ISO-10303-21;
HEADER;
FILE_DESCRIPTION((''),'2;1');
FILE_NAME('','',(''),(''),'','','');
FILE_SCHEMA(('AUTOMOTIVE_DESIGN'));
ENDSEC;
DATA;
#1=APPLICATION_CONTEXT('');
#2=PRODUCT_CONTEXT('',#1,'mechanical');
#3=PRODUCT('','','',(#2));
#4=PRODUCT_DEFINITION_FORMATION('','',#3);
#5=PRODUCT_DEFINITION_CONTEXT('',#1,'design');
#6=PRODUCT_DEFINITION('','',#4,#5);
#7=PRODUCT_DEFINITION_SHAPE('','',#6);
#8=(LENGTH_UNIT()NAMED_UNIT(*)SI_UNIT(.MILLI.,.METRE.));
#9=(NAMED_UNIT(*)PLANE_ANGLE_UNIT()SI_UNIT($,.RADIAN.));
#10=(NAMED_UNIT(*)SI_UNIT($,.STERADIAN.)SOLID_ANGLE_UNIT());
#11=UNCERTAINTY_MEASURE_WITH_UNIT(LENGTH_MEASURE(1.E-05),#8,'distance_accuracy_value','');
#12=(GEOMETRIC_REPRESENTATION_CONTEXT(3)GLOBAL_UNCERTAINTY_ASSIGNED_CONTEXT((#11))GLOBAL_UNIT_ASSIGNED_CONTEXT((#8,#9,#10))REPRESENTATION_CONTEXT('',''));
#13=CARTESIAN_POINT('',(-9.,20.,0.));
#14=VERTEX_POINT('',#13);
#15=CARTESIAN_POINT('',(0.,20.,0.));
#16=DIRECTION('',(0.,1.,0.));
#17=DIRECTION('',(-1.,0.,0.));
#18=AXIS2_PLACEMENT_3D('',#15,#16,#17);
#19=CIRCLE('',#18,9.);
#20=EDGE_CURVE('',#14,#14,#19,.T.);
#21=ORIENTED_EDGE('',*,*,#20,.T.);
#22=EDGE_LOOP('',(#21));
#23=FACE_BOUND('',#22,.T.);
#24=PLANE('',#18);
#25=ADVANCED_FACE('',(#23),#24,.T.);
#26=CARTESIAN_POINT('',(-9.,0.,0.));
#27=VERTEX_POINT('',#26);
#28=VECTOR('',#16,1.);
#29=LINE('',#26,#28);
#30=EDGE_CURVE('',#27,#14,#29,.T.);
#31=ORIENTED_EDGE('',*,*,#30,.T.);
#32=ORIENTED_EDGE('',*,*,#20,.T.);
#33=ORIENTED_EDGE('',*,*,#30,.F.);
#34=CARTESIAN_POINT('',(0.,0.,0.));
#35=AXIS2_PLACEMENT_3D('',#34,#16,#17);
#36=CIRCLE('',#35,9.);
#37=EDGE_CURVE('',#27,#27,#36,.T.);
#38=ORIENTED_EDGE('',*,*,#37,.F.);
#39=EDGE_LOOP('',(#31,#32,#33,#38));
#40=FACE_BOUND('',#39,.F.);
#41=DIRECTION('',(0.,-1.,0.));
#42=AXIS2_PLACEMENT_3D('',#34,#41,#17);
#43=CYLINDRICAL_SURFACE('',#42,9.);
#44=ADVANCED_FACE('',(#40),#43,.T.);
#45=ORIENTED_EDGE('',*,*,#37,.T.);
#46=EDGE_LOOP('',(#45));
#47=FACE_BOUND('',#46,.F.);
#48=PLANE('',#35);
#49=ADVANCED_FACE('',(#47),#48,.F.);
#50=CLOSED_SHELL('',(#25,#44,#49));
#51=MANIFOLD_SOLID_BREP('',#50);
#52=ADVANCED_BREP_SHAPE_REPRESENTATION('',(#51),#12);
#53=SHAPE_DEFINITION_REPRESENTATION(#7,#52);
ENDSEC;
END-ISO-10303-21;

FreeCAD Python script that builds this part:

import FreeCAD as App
import Part
import Sketcher
Q = App.Units.Quantity

doc = App.newDocument("Part")
body = doc.addObject("PartDesign::Body", "Body")

sketch1 = body.newObject("Sketcher::SketchObject", "Sketch")
sketch1.AttachmentSupport = (doc.getObject("XZ_Plane"), [""])
sketch1.MapMode = "FlatFace"
sketch1.addGeometry(Part.Circle(App.Vector(0, 0, 0), App.Vector(0, 0, 1), 9), False)
sketch1.addConstraint([
    Sketcher.Constraint("Coincident", 0, 3, -1, 1),
    Sketcher.Constraint("Diameter", 0, Q("18 mm")),
])
pad1 = body.newObject("PartDesign::Pad", "Pad")
pad1.Profile = sketch1
pad1.Length = 20
pad1.Reversed = True

doc.recompute()
